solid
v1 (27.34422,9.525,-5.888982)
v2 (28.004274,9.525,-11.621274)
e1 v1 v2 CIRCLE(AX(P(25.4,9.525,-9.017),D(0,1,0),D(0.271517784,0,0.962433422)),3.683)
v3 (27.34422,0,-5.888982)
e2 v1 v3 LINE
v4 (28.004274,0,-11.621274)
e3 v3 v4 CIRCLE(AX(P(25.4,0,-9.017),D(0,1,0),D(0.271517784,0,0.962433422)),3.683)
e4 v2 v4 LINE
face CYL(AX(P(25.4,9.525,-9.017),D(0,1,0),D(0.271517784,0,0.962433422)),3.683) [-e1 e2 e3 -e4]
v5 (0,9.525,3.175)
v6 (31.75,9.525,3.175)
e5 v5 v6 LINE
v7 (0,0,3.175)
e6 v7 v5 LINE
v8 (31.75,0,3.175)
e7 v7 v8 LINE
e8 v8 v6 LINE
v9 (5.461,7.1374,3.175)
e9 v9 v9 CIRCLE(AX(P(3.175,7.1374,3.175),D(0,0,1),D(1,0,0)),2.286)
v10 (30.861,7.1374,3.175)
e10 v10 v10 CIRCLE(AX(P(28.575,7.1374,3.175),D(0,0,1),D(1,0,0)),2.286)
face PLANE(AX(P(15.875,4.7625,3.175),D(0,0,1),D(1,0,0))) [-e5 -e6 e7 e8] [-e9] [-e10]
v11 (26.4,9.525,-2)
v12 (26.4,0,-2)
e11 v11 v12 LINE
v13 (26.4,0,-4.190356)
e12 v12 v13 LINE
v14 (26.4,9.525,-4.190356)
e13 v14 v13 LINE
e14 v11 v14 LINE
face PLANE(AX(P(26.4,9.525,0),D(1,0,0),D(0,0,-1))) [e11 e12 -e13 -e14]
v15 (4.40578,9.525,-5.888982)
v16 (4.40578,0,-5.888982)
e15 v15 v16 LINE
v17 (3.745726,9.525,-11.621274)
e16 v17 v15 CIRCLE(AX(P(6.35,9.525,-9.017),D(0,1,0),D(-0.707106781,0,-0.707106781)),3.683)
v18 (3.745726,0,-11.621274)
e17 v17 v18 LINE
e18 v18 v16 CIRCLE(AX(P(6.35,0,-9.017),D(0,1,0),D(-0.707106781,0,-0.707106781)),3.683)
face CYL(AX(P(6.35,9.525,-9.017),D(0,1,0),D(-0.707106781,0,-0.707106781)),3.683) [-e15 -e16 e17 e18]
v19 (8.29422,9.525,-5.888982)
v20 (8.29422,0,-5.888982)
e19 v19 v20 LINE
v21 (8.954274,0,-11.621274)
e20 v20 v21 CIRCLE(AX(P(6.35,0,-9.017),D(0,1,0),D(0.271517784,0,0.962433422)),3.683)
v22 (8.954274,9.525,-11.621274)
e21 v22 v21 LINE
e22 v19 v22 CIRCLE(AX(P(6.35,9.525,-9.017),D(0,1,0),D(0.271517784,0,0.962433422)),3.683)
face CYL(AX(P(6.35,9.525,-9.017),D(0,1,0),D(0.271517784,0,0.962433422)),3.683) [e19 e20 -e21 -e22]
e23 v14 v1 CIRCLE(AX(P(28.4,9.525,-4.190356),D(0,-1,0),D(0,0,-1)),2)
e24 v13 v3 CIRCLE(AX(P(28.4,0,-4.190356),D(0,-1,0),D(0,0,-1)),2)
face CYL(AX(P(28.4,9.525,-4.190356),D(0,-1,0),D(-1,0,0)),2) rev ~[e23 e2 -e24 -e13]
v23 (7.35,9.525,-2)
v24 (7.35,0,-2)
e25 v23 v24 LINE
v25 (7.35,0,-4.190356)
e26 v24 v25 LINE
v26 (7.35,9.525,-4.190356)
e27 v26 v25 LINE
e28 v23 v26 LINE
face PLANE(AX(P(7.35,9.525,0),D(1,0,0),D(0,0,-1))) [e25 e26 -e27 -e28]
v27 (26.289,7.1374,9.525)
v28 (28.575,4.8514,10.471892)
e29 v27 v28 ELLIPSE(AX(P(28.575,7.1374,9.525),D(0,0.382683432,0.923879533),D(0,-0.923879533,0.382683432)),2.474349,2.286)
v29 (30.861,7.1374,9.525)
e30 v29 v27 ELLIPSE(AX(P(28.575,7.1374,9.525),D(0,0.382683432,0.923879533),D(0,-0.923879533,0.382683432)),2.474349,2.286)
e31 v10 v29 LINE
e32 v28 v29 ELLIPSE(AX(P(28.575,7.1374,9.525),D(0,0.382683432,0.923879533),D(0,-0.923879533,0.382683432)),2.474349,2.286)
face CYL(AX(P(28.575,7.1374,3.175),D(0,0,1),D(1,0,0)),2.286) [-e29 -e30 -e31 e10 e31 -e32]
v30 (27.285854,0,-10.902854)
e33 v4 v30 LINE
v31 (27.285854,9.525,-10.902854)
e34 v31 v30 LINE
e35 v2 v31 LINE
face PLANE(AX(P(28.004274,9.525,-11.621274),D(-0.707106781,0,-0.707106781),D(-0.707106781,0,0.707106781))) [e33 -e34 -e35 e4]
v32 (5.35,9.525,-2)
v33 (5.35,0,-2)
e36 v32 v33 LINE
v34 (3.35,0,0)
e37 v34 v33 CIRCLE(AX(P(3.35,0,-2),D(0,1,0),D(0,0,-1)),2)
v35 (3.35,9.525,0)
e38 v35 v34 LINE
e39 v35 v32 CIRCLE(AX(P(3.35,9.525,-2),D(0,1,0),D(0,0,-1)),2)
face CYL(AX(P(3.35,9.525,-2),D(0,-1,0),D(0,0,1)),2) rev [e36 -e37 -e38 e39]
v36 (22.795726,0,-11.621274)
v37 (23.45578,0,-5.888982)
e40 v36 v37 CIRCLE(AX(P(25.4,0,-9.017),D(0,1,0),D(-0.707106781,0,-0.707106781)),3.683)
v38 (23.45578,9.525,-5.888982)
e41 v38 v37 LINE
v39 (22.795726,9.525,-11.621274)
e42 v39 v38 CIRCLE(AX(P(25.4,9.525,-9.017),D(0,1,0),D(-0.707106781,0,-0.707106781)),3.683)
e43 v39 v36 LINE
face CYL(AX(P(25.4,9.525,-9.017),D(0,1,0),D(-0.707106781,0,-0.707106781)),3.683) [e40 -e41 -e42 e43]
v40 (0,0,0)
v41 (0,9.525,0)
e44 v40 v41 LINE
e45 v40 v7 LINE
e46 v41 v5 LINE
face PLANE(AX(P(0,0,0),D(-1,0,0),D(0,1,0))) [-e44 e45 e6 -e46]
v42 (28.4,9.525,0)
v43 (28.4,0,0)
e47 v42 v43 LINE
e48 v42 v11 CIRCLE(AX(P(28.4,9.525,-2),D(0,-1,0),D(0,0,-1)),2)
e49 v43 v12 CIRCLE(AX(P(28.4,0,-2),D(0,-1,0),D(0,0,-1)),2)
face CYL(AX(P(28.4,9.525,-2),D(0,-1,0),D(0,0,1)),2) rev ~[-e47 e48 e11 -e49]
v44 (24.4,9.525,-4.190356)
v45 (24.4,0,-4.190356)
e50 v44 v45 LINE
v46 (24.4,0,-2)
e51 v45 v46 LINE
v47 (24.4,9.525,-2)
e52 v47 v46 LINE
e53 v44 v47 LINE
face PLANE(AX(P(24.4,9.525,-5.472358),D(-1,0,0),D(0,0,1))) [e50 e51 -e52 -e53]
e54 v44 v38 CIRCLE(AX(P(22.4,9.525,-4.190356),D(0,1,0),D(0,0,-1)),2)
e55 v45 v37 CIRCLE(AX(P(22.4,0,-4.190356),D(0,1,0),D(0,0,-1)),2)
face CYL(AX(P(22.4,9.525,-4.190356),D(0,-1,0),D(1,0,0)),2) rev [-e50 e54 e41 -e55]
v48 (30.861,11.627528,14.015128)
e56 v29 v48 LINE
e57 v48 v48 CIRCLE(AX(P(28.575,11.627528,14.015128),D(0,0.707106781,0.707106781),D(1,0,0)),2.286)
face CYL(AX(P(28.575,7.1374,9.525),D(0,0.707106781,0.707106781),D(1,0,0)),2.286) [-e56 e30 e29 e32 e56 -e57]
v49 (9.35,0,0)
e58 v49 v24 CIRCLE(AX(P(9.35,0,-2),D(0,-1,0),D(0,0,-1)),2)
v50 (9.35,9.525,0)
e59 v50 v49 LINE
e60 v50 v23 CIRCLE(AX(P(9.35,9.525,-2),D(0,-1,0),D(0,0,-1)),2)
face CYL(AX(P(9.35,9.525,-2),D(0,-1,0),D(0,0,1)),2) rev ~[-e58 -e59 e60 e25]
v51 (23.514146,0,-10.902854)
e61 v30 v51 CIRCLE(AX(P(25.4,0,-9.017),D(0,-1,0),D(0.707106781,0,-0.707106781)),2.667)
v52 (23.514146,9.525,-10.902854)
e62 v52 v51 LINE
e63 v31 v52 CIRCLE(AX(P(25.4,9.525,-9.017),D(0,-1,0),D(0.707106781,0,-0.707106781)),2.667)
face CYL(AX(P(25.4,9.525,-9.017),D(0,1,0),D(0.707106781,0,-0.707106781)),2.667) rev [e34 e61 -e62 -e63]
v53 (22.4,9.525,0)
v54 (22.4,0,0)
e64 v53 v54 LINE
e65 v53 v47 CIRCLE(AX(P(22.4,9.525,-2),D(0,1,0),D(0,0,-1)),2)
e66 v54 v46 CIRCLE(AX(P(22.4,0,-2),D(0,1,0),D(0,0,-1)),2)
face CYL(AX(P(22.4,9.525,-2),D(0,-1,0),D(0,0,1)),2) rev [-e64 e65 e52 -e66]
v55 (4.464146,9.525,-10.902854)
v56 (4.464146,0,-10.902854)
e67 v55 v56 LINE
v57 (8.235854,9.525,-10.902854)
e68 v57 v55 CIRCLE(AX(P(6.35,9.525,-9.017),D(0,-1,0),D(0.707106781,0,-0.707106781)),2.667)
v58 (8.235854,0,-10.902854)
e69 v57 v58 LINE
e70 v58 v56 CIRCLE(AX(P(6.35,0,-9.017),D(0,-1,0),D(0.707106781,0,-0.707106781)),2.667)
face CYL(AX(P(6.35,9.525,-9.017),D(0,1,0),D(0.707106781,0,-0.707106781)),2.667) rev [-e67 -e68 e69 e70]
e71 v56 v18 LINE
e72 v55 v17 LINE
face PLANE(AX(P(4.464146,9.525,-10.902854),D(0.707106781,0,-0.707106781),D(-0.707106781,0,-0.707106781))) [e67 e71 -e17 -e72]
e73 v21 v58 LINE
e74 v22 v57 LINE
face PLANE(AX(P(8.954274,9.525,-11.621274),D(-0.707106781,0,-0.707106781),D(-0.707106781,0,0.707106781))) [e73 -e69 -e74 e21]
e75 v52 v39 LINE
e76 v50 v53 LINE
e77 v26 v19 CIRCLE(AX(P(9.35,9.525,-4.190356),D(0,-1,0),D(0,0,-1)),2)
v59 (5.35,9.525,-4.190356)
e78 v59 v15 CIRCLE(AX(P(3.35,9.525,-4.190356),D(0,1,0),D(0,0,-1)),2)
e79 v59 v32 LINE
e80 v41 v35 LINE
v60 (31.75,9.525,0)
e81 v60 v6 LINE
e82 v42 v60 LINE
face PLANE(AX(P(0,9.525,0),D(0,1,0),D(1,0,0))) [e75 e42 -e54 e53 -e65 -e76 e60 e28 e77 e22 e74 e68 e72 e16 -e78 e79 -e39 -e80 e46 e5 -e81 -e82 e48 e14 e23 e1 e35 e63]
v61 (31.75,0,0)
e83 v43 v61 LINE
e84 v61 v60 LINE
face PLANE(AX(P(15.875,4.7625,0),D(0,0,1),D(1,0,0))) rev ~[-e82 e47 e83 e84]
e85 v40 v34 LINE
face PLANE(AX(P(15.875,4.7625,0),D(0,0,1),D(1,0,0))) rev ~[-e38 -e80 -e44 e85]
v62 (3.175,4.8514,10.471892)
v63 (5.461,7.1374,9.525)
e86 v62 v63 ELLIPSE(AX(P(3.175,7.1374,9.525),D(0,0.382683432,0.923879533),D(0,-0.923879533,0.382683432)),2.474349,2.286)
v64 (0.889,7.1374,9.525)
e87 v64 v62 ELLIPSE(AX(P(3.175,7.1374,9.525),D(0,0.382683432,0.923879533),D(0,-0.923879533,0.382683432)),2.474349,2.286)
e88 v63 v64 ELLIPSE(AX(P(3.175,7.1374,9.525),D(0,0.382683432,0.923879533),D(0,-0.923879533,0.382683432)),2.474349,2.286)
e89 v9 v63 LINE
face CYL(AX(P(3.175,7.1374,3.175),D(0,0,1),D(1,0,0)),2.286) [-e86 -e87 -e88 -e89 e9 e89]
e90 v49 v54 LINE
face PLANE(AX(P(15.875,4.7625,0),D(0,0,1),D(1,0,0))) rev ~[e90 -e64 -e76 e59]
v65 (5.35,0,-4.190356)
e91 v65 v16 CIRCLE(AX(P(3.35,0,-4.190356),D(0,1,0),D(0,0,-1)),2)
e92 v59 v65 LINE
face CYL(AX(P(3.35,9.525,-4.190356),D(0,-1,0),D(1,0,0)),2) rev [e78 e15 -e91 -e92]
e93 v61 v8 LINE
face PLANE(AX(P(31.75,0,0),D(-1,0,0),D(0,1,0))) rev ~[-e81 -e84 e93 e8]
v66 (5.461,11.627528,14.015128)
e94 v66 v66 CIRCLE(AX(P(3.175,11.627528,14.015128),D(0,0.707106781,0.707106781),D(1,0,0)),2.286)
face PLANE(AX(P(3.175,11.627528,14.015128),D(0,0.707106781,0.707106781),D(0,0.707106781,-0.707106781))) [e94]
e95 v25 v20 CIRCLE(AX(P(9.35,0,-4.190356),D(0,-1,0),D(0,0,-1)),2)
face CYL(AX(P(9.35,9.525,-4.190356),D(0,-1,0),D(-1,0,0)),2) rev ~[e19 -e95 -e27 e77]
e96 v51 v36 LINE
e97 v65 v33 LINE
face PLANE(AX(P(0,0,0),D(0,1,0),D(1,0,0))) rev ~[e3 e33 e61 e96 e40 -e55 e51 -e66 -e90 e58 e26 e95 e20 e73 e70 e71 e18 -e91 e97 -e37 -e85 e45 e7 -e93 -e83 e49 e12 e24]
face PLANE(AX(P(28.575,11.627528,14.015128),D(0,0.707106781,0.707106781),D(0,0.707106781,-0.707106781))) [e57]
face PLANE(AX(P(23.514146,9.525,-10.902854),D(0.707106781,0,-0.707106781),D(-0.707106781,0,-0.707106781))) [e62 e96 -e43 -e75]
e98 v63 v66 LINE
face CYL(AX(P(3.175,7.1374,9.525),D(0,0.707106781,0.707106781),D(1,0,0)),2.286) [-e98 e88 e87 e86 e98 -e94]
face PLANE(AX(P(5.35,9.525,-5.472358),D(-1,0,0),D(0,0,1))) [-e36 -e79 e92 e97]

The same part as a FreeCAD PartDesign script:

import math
import FreeCAD as App
import Part
import Sketcher
Q = App.Units.Quantity


def edges_at(feature, points):
    """Names of the edges that pass closest to the given points."""
    edges = feature.Shape.Edges
    near = lambda p: min(range(len(edges)), key=lambda i: edges[i].distToShape(Part.Vertex(*p))[0])
    return sorted({f"Edge{near(p) + 1}" for p in points})


def add_polygon(sketch, points):
    """Adds a closed chain of lines whose ends are joined by coincident constraints."""
    first, n = sketch.GeometryCount, len(points)
    for a, b in zip(points, points[1:] + points[:1]):
        sketch.addGeometry(Part.LineSegment(App.Vector(*a, 0), App.Vector(*b, 0)), False)
    for i in range(n):
        sketch.addConstraint(Sketcher.Constraint("Coincident", first + i, 2, first + (i + 1) % n, 1))

doc = App.newDocument("Part")
body = doc.addObject("PartDesign::Body", "Body")

sketch1 = body.newObject("Sketcher::SketchObject", "Sketch")
sketch1.AttachmentSupport = (doc.getObject("XY_Plane"), [""])
sketch1.MapMode = "FlatFace"
add_polygon(sketch1, [(0, 10), (0, 0), (32, 0), (32, 10)])
sketch1.addConstraint([
    Sketcher.Constraint("Vertical", 0),
    Sketcher.Constraint("Horizontal", 1),
    Sketcher.Constraint("Vertical", 2),
    Sketcher.Constraint("Horizontal", 3),
    Sketcher.Constraint("Coincident", 0, 2, -1, 1),
    Sketcher.Constraint("DistanceX", 1, 1, 1, 2, Q("1.25 in")),
    Sketcher.Constraint("DistanceY", 0, 2, 0, 1, Q("0.375 in")),
])
pad1 = body.newObject("PartDesign::Pad", "Pad")
pad1.Profile = sketch1
pad1.Length = Q("0.125 in")

sketch2 = body.newObject("Sketcher::SketchObject", "Sketch001")
sketch2.AttachmentSupport = (doc.getObject("XY_Plane"), [""])
sketch2.MapMode = "FlatFace"
sketch2.AttachmentOffset = App.Placement(App.Vector(0, 0, 0.125 * 25.4), App.Rotation())
sketch2.addGeometry(Part.Circle(App.Vector(28.6, 7.1, 0), App.Vector(0, 0, 1), 2.3), False)
sketch2.addConstraint([
    Sketcher.Constraint("Diameter", 0, Q("0.18 in")),
    Sketcher.Constraint("DistanceX", -1, 1, 0, 3, Q("1.125 in")),
    Sketcher.Constraint("DistanceY", -1, 1, 0, 3, Q("0.281 in")),
])

sketch3 = body.newObject("Sketcher::SketchObject", "Sketch002")
sketch3.AttachmentSupport = (doc.getObject("YZ_Plane"), [""])
sketch3.MapMode = "FlatFace"
sketch3.AttachmentOffset = App.Placement(App.Vector(0, 0, 1.125 * 25.4), App.Rotation())
sketch3.addGeometry([
    Part.LineSegment(App.Vector(7, 3, 0), App.Vector(7, 10, 0)),
    Part.LineSegment(App.Vector(7, 10, 0), App.Vector(12, 14, 0)),
], False)
sketch3.addConstraint([
    Sketcher.Constraint("Coincident", 0, 2, 1, 1),
    Sketcher.Constraint("Vertical", 0),
    Sketcher.Constraint("Angle", 1, Q("45 deg")),
    Sketcher.Constraint("DistanceY", 0, 1, 0, 2, Q("0.25 in")),
    Sketcher.Constraint("Distance", 1, Q("0.25 in")),
    Sketcher.Constraint("DistanceX", -1, 1, 0, 1, Q("0.281 in")),
    Sketcher.Constraint("DistanceY", -1, 1, 0, 1, Q("0.125 in")),
])
doc.recompute()

additivepipe = body.newObject("PartDesign::AdditivePipe", "AdditivePipe")
additivepipe.Profile = sketch2
additivepipe.Spine = (sketch3, ["Edge1", "Edge2"])
additivepipe.Transition = "Right corner"

sketch4 = body.newObject("Sketcher::SketchObject", "Sketch003")
sketch4.AttachmentSupport = (doc.getObject("XY_Plane"), [""])
sketch4.MapMode = "FlatFace"
sketch4.AttachmentOffset = App.Placement(App.Vector(0, 0, 0.125 * 25.4), App.Rotation())
sketch4.addGeometry(Part.Circle(App.Vector(3.2, 7.1, 0), App.Vector(0, 0, 1), 2.3), False)
sketch4.addConstraint([
    Sketcher.Constraint("Diameter", 0, Q("0.18 in")),
    Sketcher.Constraint("DistanceX", -1, 1, 0, 3, Q("0.125 in")),
    Sketcher.Constraint("DistanceY", -1, 1, 0, 3, Q("0.281 in")),
])

sketch5 = body.newObject("Sketcher::SketchObject", "Sketch004")
sketch5.AttachmentSupport = (doc.getObject("YZ_Plane"), [""])
sketch5.MapMode = "FlatFace"
sketch5.AttachmentOffset = App.Placement(App.Vector(0, 0, 0.125 * 25.4), App.Rotation())
sketch5.addGeometry([
    Part.LineSegment(App.Vector(7, 3, 0), App.Vector(7, 10, 0)),
    Part.LineSegment(App.Vector(7, 10, 0), App.Vector(12, 14, 0)),
], False)
sketch5.addConstraint([
    Sketcher.Constraint("Coincident", 0, 2, 1, 1),
    Sketcher.Constraint("Vertical", 0),
    Sketcher.Constraint("Angle", 1, Q("45 deg")),
    Sketcher.Constraint("DistanceY", 0, 1, 0, 2, Q("0.25 in")),
    Sketcher.Constraint("Distance", 1, Q("0.25 in")),
    Sketcher.Constraint("DistanceX", -1, 1, 0, 1, Q("0.281 in")),
    Sketcher.Constraint("DistanceY", -1, 1, 0, 1, Q("0.125 in")),
])
doc.recompute()

additivepipe2 = body.newObject("PartDesign::AdditivePipe", "AdditivePipe001")
additivepipe2.Profile = sketch4
additivepipe2.Spine = (sketch5, ["Edge1", "Edge2"])
additivepipe2.Transition = "Right corner"

sketch6 = body.newObject("Sketcher::SketchObject", "Sketch005")
sketch6.AttachmentSupport = (doc.getObject("XZ_Plane"), [""])
sketch6.MapMode = "FlatFace"
sketch6.AttachmentOffset = App.Placement(App.Vector(0, 0, -0.375 * 25.4), App.Rotation())
sketch6.addGeometry([
    Part.ArcOfCircle(Part.Circle(App.Vector(25.4, -9, 0), App.Vector(0, 0, 1), 2.7), math.radians(-45), math.radians(225)),
    Part.LineSegment(App.Vector(23.5, -10.9, 0), App.Vector(22.8, -11.6, 0)),
    Part.ArcOfCircle(Part.Circle(App.Vector(25.4, -9, 0), App.Vector(0, 0, 1), 3.7), math.radians(106), math.radians(225)),
    Part.LineSegment(App.Vector(24.4, -5.5, 0), App.Vector(24.4, 0, 0)),
    Part.LineSegment(App.Vector(24.4, 0, 0), App.Vector(26.4, 0, 0)),
    Part.LineSegment(App.Vector(26.4, 0, 0), App.Vector(26.4, -5.5, 0)),
    Part.ArcOfCircle(Part.Circle(App.Vector(25.4, -9, 0), App.Vector(0, 0, 1), 3.7), math.radians(-45), math.radians(74)),
    Part.LineSegment(App.Vector(28, -11.6, 0), App.Vector(27.3, -10.9, 0)),
    Part.LineSegment(App.Vector(5.3, 0, 0), App.Vector(7.3, 0, 0)),
    Part.LineSegment(App.Vector(7.3, 0, 0), App.Vector(7.3, -5.5, 0)),
    Part.ArcOfCircle(Part.Circle(App.Vector(6.3, -9, 0), App.Vector(0, 0, 1), 3.7), math.radians(-45), math.radians(74)),
    Part.LineSegment(App.Vector(9, -11.6, 0), App.Vector(8.2, -10.9, 0)),
    Part.ArcOfCircle(Part.Circle(App.Vector(6.3, -9, 0), App.Vector(0, 0, 1), 2.7), math.radians(-45), math.radians(225)),
    Part.LineSegment(App.Vector(4.5, -10.9, 0), App.Vector(3.7, -11.6, 0)),
    Part.ArcOfCircle(Part.Circle(App.Vector(6.3, -9, 0), App.Vector(0, 0, 1), 3.7), math.radians(106), math.radians(225)),
    Part.LineSegment(App.Vector(5.3, -5.5, 0), App.Vector(5.3, 0, 0)),
], False)
sketch6.addConstraint([
    Sketcher.Constraint("Coincident", 0, 2, 1, 1),
    Sketcher.Constraint("Coincident", 1, 2, 2, 2),
    Sketcher.Constraint("Coincident", 2, 1, 3, 1),
    Sketcher.Constraint("Coincident", 3, 2, 4, 1),
    Sketcher.Constraint("Coincident", 4, 2, 5, 1),
    Sketcher.Constraint("Coincident", 5, 2, 6, 2),
    Sketcher.Constraint("Coincident", 6, 1, 7, 1),
    Sketcher.Constraint("Coincident", 7, 2, 0, 1),
    Sketcher.Constraint("Coincident", 8, 2, 9, 1),
    Sketcher.Constraint("Coincident", 9, 2, 10, 2),
    Sketcher.Constraint("Coincident", 10, 1, 11, 1),
    Sketcher.Constraint("Coincident", 11, 2, 12, 1),
    Sketcher.Constraint("Coincident", 12, 2, 13, 1),
    Sketcher.Constraint("Coincident", 13, 2, 14, 2),
    Sketcher.Constraint("Coincident", 14, 1, 15, 1),
    Sketcher.Constraint("Coincident", 15, 2, 8, 1),
    Sketcher.Constraint("Vertical", 3),
    Sketcher.Constraint("Horizontal", 4),
    Sketcher.Constraint("Vertical", 5),
    Sketcher.Constraint("Horizontal", 8),
    Sketcher.Constraint("Vertical", 9),
    Sketcher.Constraint("Vertical", 15),
    Sketcher.Constraint("Coincident", 2, 3, 0, 3),
    Sketcher.Constraint("Coincident", 6, 3, 0, 3),
    Sketcher.Constraint("Coincident", 12, 3, 10, 3),
    Sketcher.Constraint("Coincident", 14, 3, 10, 3),
    Sketcher.Constraint("Equal", 2, 6),
    Sketcher.Constraint("Equal", 6, 10),
    Sketcher.Constraint("Equal", 0, 12),
    Sketcher.Constraint("Equal", 10, 14),
    Sketcher.Constraint("PointOnObject", 3, 2, -1),
    Sketcher.Constraint("PointOnObject", 8, 2, -1),
    Sketcher.Constraint("Perpendicular", 1, 7),
    Sketcher.Constraint("Parallel", 7, 11),
    Sketcher.Constraint("Perpendicular", 11, 13),
    Sketcher.Constraint("Horizontal", 6, 3, 10, 3),
    Sketcher.Constraint("Horizontal", 2, 1, 5, 2),
    Sketcher.Constraint("Horizontal", 1, 2, 6, 1),
    Sketcher.Constraint("Horizontal", 0, 2, 7, 2),
    Sketcher.Constraint("Horizontal", 5, 2, 9, 2),
    Sketcher.Constraint("Horizontal", 6, 1, 10, 1),
    Sketcher.Constraint("Horizontal", 11, 2, 12, 2),
    Sketcher.Constraint("Horizontal", 9, 2, 14, 1),
    Sketcher.Constraint("DistanceX", -1, 1, 0, 3, Q("1 in")),
    Sketcher.Constraint("Radius", 0, Q("0.105 in")),
    Sketcher.Constraint("Radius", 2, Q("0.145 in")),
    Sketcher.Constraint("DistanceX", -1, 1, 10, 3, Q("0.25 in")),
    Sketcher.Constraint("DistanceY", 0, 3, -1, 1, Q("0.355 in")),
    Sketcher.Constraint("DistanceX", 4, 1, 4, 2, 2.0),
    Sketcher.Constraint("DistanceX", 0, 2, 6, 1, 4.490128),
])
pad2 = body.newObject("PartDesign::Pad", "Pad001")
pad2.Profile = sketch6
pad2.Length = Q("0.375 in")
doc.recompute()

fillet = body.newObject("PartDesign::Fillet", "Fillet")
fillet.Base = (pad2, edges_at(pad2, [
    (26.4, 4.763, 0),
    (24.4, 4.763, 0),
    (7.35, 4.763, 0),
    (5.35, 4.763, 0),
    (24.4, 4.763, -5.472),
    (26.4, 4.763, -5.472),
    (7.35, 4.763, -5.472),
    (5.35, 4.763, -5.472),
]))
fillet.Radius = 2

doc.recompute()
